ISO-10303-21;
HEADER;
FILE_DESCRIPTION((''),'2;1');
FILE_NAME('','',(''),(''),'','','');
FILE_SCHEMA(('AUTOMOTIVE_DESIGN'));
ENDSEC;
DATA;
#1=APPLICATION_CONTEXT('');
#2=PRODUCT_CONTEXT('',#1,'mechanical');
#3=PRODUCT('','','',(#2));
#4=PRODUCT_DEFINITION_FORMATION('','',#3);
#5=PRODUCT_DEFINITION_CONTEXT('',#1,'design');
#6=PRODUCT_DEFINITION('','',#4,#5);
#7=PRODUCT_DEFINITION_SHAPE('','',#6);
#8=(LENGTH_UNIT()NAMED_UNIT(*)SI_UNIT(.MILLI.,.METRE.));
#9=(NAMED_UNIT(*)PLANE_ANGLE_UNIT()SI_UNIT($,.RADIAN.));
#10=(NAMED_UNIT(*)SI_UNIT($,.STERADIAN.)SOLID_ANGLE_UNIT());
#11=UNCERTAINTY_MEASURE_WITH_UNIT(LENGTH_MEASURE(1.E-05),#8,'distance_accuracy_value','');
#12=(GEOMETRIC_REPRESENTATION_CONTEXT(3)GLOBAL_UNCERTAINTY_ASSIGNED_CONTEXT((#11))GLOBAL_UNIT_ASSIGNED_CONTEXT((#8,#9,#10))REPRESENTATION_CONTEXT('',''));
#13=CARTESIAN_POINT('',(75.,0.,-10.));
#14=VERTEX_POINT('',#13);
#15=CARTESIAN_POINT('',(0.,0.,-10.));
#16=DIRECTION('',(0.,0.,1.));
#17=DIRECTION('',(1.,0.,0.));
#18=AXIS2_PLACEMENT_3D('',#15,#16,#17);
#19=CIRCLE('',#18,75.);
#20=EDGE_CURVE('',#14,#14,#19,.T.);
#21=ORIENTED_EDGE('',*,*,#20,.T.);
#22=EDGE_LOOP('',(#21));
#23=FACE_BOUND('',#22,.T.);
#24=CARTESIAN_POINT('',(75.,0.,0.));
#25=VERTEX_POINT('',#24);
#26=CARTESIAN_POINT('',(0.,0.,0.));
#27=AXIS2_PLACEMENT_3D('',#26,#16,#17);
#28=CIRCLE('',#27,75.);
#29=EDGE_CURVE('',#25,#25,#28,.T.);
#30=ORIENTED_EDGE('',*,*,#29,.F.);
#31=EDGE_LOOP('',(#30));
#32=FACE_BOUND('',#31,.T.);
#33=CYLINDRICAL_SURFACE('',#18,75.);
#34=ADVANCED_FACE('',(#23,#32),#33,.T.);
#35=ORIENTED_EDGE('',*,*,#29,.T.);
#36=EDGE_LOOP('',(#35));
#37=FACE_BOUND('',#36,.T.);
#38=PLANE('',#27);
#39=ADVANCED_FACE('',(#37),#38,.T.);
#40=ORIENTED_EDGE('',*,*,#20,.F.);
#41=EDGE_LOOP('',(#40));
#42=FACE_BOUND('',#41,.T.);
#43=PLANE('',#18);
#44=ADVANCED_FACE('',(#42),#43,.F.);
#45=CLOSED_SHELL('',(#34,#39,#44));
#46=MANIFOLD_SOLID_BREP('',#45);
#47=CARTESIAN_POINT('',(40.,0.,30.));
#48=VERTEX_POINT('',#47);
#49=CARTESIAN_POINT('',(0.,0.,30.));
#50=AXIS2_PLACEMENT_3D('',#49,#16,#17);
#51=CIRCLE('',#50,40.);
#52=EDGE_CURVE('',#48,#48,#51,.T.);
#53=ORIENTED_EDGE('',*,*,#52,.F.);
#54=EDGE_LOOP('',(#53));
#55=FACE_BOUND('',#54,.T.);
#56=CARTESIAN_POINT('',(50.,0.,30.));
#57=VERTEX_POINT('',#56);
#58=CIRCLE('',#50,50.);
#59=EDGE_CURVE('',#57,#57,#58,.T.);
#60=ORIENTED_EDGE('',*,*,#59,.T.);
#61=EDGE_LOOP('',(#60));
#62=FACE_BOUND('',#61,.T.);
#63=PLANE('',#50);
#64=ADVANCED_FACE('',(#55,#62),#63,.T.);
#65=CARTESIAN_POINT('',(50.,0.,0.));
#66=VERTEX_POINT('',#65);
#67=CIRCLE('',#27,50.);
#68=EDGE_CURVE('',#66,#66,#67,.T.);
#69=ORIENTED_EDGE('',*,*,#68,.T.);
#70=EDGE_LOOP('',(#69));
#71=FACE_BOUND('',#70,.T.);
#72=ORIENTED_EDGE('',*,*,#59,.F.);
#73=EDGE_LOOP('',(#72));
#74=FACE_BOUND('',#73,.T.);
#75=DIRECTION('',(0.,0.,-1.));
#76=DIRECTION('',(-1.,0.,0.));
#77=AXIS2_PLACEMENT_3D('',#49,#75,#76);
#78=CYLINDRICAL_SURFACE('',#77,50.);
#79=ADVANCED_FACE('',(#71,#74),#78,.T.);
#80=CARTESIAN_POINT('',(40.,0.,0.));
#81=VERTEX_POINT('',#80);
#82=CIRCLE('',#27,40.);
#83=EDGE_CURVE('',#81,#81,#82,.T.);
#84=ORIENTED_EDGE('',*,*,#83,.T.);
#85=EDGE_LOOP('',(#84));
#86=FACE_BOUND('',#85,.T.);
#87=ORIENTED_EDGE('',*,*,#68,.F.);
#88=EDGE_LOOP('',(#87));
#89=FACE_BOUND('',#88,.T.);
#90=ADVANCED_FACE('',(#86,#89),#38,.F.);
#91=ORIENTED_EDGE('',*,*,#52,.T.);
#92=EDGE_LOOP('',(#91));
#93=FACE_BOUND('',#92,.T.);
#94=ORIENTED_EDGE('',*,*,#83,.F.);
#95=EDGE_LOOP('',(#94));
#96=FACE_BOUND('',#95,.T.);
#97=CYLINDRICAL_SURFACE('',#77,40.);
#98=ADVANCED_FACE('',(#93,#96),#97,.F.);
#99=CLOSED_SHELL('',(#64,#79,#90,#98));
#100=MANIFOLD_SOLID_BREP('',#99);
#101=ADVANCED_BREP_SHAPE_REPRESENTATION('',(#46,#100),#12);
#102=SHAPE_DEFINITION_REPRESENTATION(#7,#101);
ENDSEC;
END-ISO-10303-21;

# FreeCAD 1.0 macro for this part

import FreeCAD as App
import Part
import Sketcher

V = App.Vector
Q = App.Units.Quantity

doc = App.newDocument("Part")
params = doc.addObject("Spreadsheet::Sheet", "Params")
for row, (alias, value) in enumerate([
    ("sketch1_diameter", "100 mm"),
    ("sketch1_diameter2", "80 mm"),
    ("pad1_length", "30 mm"),
    ("sketch2_diameter", "150 mm"),
    ("pad2_length", "10 mm"),
], start=1):
    params.set(f"A{row}", alias)
    params.set(f"B{row}", "=" + value)
    params.setAlias(f"B{row}", alias)

body = doc.addObject("PartDesign::Body", "Body")

# Sketch on XY plane
sketch1 = body.newObject("Sketcher::SketchObject", "Sketch")
sketch1.AttachmentSupport = (doc.getObject("XY_Plane"), [""])
sketch1.MapMode = "FlatFace"
sketch1.addGeometry([
    Part.Circle(V(0, 0, 0), V(0, 0, 1), 50),
    Part.Circle(V(0, 0, 0), V(0, 0, 1), 40),
], False)
sketch1.addConstraint([
    Sketcher.Constraint("Coincident", 0, 3, -1, 1),
    Sketcher.Constraint("Coincident", 1, 3, -1, 1),
    Sketcher.Constraint("Diameter", 0, Q("100 mm")),
    Sketcher.Constraint("Diameter", 1, Q("80 mm")),
])
sketch1.setExpression("Constraints[2]", "Params.sketch1_diameter")
sketch1.setExpression("Constraints[3]", "Params.sketch1_diameter2")
pad1 = body.newObject("PartDesign::Pad", "Pad")
pad1.Profile = sketch1
pad1.setExpression("Length", "Params.pad1_length")
body2 = doc.addObject("PartDesign::Body", "Body001")

# Sketch on XY plane
sketch2 = body2.newObject("Sketcher::SketchObject", "Sketch001")
sketch2.AttachmentSupport = (doc.getObject("XY_Plane001"), [""])
sketch2.MapMode = "FlatFace"
sketch2.addGeometry(Part.Circle(V(0, 0, 0), V(0, 0, 1), 75), False)
sketch2.addConstraint([
    Sketcher.Constraint("Coincident", 0, 3, -1, 1),
    Sketcher.Constraint("Diameter", 0, Q("150 mm")),
])
sketch2.setExpression("Constraints[1]", "Params.sketch2_diameter")
pad2 = body2.newObject("PartDesign::Pad", "Pad001")
pad2.Profile = sketch2
pad2.setExpression("Length", "Params.pad2_length")
pad2.Reversed = True

doc.recompute()
